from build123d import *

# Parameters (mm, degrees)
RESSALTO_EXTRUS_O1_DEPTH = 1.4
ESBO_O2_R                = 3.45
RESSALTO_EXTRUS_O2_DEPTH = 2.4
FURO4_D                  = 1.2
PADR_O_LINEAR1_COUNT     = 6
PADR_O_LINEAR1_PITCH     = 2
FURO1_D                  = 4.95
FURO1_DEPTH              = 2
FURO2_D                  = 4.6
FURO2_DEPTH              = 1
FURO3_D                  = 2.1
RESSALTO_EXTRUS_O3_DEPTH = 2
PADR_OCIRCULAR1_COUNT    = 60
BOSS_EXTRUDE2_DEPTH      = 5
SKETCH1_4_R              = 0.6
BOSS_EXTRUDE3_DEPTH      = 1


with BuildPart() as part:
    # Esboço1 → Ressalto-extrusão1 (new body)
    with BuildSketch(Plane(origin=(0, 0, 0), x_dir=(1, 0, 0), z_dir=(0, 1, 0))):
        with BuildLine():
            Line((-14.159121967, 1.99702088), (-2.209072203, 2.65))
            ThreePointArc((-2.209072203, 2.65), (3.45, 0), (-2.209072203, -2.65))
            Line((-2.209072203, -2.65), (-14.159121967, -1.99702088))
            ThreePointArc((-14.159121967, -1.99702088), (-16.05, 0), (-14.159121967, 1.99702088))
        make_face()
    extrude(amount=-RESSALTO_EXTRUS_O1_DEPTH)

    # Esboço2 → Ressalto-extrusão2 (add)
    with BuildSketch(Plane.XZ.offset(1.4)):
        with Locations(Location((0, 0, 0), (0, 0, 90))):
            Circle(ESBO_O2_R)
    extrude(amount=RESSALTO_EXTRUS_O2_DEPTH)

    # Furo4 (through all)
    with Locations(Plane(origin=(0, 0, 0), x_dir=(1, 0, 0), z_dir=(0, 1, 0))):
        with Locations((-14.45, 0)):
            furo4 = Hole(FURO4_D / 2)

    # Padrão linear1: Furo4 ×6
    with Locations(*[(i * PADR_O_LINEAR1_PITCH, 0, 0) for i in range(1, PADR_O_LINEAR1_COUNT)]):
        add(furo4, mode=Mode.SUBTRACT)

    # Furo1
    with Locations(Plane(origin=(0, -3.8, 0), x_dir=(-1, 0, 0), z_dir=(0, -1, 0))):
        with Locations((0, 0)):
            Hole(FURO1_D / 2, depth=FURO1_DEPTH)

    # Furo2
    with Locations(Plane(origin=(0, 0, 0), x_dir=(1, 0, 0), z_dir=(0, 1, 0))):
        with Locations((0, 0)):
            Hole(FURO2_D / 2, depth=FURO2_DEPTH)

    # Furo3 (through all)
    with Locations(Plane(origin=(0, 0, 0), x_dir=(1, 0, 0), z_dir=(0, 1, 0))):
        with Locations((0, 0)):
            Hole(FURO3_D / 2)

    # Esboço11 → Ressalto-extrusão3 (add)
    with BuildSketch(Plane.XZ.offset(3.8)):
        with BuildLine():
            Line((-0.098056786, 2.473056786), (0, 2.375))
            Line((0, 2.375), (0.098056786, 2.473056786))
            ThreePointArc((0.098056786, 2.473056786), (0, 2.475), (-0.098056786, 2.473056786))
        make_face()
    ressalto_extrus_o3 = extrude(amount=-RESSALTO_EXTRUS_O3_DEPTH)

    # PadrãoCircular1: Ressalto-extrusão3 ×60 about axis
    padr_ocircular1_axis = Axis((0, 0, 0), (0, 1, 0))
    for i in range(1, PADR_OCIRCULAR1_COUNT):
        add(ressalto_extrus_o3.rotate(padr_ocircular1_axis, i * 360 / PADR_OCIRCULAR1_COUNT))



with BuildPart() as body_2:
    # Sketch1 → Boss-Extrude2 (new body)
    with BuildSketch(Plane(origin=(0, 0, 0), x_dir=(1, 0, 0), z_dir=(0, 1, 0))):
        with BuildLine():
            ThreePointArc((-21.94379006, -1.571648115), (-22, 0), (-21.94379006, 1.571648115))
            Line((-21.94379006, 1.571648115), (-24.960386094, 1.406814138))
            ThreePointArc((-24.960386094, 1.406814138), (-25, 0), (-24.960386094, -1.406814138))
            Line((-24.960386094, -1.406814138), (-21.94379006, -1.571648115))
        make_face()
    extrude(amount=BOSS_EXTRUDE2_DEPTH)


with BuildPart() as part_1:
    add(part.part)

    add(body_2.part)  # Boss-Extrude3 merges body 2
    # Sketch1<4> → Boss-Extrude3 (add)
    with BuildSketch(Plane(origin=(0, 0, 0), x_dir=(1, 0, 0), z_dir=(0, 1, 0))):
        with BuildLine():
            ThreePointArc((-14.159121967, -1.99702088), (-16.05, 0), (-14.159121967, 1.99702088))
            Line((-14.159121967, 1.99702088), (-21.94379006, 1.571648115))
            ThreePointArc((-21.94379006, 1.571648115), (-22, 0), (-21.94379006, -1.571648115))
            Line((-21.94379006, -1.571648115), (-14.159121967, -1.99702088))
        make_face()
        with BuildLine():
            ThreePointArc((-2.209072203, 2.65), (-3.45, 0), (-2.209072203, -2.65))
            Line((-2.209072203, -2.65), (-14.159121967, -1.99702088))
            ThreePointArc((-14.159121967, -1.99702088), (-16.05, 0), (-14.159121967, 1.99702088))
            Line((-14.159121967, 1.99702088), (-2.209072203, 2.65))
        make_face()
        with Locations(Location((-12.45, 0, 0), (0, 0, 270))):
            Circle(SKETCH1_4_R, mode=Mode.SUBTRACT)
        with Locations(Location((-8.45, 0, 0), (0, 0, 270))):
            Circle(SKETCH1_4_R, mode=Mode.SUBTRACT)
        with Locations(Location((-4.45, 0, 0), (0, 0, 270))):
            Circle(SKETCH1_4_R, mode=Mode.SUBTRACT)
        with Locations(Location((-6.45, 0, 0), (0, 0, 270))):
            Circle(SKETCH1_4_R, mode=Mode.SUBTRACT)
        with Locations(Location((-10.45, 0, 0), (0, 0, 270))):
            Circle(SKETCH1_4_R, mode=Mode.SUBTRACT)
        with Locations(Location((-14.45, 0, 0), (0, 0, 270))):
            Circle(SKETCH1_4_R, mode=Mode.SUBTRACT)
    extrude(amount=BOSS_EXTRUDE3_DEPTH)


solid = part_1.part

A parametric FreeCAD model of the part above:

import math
import FreeCAD as App
import Part
import Sketcher

V = App.Vector
Q = App.Units.Quantity

doc = App.newDocument("Part")
body = doc.addObject("PartDesign::Body", "Body")

# Sketch on XZ plane
sketch1 = body.newObject("Sketcher::SketchObject", "Sketch")
sketch1.AttachmentSupport = (doc.getObject("XZ_Plane"), [""])
sketch1.MapMode = "FlatFace"
sketch1.addGeometry([
    Part.LineSegment(V(-2.2, -2.6, 0), V(-14.2, -2, 0)),
    Part.ArcOfCircle(Part.Circle(V(-14.1, 0, 0), V(0, 0, 1), 2), math.radians(93), math.radians(267)),
    Part.LineSegment(V(-14.2, 2, 0), V(-2.2, 2.6, 0)),
    Part.ArcOfCircle(Part.Circle(V(0, 0, 0), V(0, 0, 1), 3.5), math.radians(-130), math.radians(130)),
], False)
sketch1.addConstraint([
    Sketcher.Constraint("Tangent", 0, 2, 1, 2),
    Sketcher.Constraint("Tangent", 1, 1, 2, 1),
    Sketcher.Constraint("Coincident", 2, 2, 3, 2),
    Sketcher.Constraint("Coincident", 3, 1, 0, 1),
    Sketcher.Constraint("Coincident", 3, 3, -1, 1),
    Sketcher.Constraint("Symmetric", 0, 2, 1, 1, -1),
    Sketcher.Constraint("Radius", 1, Q("2 mm")),
    Sketcher.Constraint("Radius", 3, Q("3.45 mm")),
    Sketcher.Constraint("DistanceY", 3, 1, 2, 2, Q("5.3 mm")),
    Sketcher.Constraint("DistanceX", 1, 3, -1, 1, Q("14.05 mm")),
])
pad1 = body.newObject("PartDesign::Pad", "Pad")
pad1.Profile = sketch1
pad1.Length = 1.4

# Sketch on XZ plane
sketch2 = body.newObject("Sketcher::SketchObject", "Sketch001")
sketch2.AttachmentSupport = (doc.getObject("XZ_Plane"), [""])
sketch2.MapMode = "FlatFace"
sketch2.AttachmentOffset = App.Placement(V(0, 0, 1.4), App.Rotation())
sketch2.addGeometry(Part.Circle(V(0, 0, 0), V(0, 0, 1), 3.5), False)
sketch2.addConstraint([
    Sketcher.Constraint("Coincident", 0, 3, -1, 1),
    Sketcher.Constraint("Diameter", 0, Q("6.9 mm")),
])
pad2 = body.newObject("PartDesign::Pad", "Pad001")
pad2.Profile = sketch2
pad2.Length = 2.4

# Sketch on XZ plane
sketch3 = body.newObject("Sketcher::SketchObject", "Sketch002")
sketch3.AttachmentSupport = (doc.getObject("XZ_Plane"), [""])
sketch3.MapMode = "FlatFace"
sketch3.addGeometry(Part.Circle(V(-14.4, 0, 0), V(0, 0, 1), 0.6), False)
sketch3.addConstraint([
    Sketcher.Constraint("PointOnObject", 0, 3, -1),
    Sketcher.Constraint("Diameter", 0, Q("1.2 mm")),
    Sketcher.Constraint("DistanceX", 0, 3, -1, 1, Q("14.45 mm")),
])
doc.recompute()
hole = body.newObject("PartDesign::Hole", "Hole")
hole.Profile = sketch3
hole.ThreadType = "None"
hole.Diameter = 1.2
hole.DepthType = "ThroughAll"
hole.Reversed = True
doc.recompute()

linearpattern = body.newObject("PartDesign::LinearPattern", "LinearPattern")
linearpattern.Originals = [hole]
linearpattern.Direction = (doc.getObject("X_Axis"), [""])
linearpattern.Mode = "offset"
linearpattern.Offset = 2
linearpattern.Occurrences = 6
body.Tip = linearpattern

# Sketch on XZ plane
sketch4 = body.newObject("Sketcher::SketchObject", "Sketch003")
sketch4.AttachmentSupport = (doc.getObject("XZ_Plane"), [""])
sketch4.MapMode = "FlatFace"
sketch4.AttachmentOffset = App.Placement(V(0, 0, 3.8), App.Rotation())
sketch4.addGeometry(Part.Circle(V(0, 0, 0), V(0, 0, 1), 2.5), False)
sketch4.addConstraint([
    Sketcher.Constraint("Coincident", 0, 3, -1, 1),
    Sketcher.Constraint("Diameter", 0, Q("4.95 mm")),
])
doc.recompute()
hole2 = body.newObject("PartDesign::Hole", "Hole001")
hole2.Profile = sketch4
hole2.ThreadType = "None"
hole2.Diameter = 4.95
hole2.DepthType = "Dimension"
hole2.Depth = 2
hole2.DrillPoint = "Flat"

# Sketch on XZ plane
sketch5 = body.newObject("Sketcher::SketchObject", "Sketch004")
sketch5.AttachmentSupport = (doc.getObject("XZ_Plane"), [""])
sketch5.MapMode = "FlatFace"
sketch5.addGeometry(Part.Circle(V(0, 0, 0), V(0, 0, 1), 2.3), False)
sketch5.addConstraint([
    Sketcher.Constraint("Coincident", 0, 3, -1, 1),
    Sketcher.Constraint("Diameter", 0, Q("4.6 mm")),
])
doc.recompute()
hole3 = body.newObject("PartDesign::Hole", "Hole002")
hole3.Profile = sketch5
hole3.ThreadType = "None"
hole3.Diameter = 4.6
hole3.DepthType = "Dimension"
hole3.Depth = 1
hole3.DrillPoint = "Flat"
hole3.Reversed = True

# Sketch on XZ plane
sketch6 = body.newObject("Sketcher::SketchObject", "Sketch005")
sketch6.AttachmentSupport = (doc.getObject("XZ_Plane"), [""])
sketch6.MapMode = "FlatFace"
sketch6.addGeometry(Part.Circle(V(0, 0, 0), V(0, 0, 1), 1.1), False)
sketch6.addConstraint([
    Sketcher.Constraint("Coincident", 0, 3, -1, 1),
    Sketcher.Constraint("Diameter", 0, Q("2.1 mm")),
])
doc.recompute()
hole4 = body.newObject("PartDesign::Hole", "Hole003")
hole4.Profile = sketch6
hole4.ThreadType = "None"
hole4.Diameter = 2.1
hole4.DepthType = "ThroughAll"
hole4.Reversed = True

# Sketch on XZ plane
sketch7 = body.newObject("Sketcher::SketchObject", "Sketch006")
sketch7.AttachmentSupport = (doc.getObject("XZ_Plane"), [""])
sketch7.MapMode = "FlatFace"
sketch7.AttachmentOffset = App.Placement(V(0, 0, 3.8), App.Rotation())
sketch7.addGeometry([
    Part.LineSegment(V(-0.1, 2.47, 0), V(0, 2.38, 0)),
    Part.LineSegment(V(0, 2.38, 0), V(0.1, 2.47, 0)),
    Part.ArcOfCircle(Part.Circle(V(0, 0, 0), V(0, 0, 1), 2.48), math.radians(87.73), math.radians(92.27)),
], False)
sketch7.addConstraint([
    Sketcher.Constraint("Coincident", 0, 2, 1, 1),
    Sketcher.Constraint("Coincident", 1, 2, 2, 1),
    Sketcher.Constraint("Coincident", 2, 2, 0, 1),
    Sketcher.Constraint("Coincident", 2, 3, -1, 1),
    Sketcher.Constraint("PointOnObject", 0, 2, -2),
    Sketcher.Constraint("Perpendicular", 0, 1),
    Sketcher.Constraint("Horizontal", 1, 2, 2, 2),
    Sketcher.Constraint("Radius", 2, Q("2.475 mm")),
    Sketcher.Constraint("DistanceY", -1, 1, 0, 2, Q("2.375 mm")),
])
pad3 = body.newObject("PartDesign::Pad", "Pad002")
pad3.Profile = sketch7
pad3.Length = 2
pad3.Reversed = True
doc.recompute()

polarpattern = body.newObject("PartDesign::PolarPattern", "PolarPattern")
polarpattern.Originals = [pad3]
polarpattern.Axis = (doc.getObject("Y_Axis"), [""])
polarpattern.Angle = 360
polarpattern.Occurrences = 60
body.Tip = polarpattern
body2 = doc.addObject("PartDesign::Body", "Body001")

# Sketch on XZ plane
sketch8 = body2.newObject("Sketcher::SketchObject", "Sketch007")
sketch8.AttachmentSupport = (doc.getObject("XZ_Plane001"), [""])
sketch8.MapMode = "FlatFace"
sketch8.addGeometry([
    Part.ArcOfCircle(Part.Circle(V(0, 0, 0), V(0, 0, 1), 22), math.radians(175.9), math.radians(184.1)),
    Part.LineSegment(V(-21.9, -1.6, 0), V(-25, -1.4, 0)),
    Part.ArcOfCircle(Part.Circle(V(0, 0, 0), V(0, 0, 1), 25), math.radians(176.77), math.radians(183.23)),
    Part.LineSegment(V(-25, 1.4, 0), V(-21.9, 1.6, 0)),
], False)
sketch8.addConstraint([
    Sketcher.Constraint("Coincident", 0, 2, 1, 1),
    Sketcher.Constraint("Coincident", 1, 2, 2, 2),
    Sketcher.Constraint("Coincident", 2, 1, 3, 1),
    Sketcher.Constraint("Coincident", 3, 2, 0, 1),
    Sketcher.Constraint("Coincident", 0, 3, -1, 1),
    Sketcher.Constraint("Coincident", 2, 3, -1, 1),
    Sketcher.Constraint("Vertical", 1, 2, 2, 1),
    Sketcher.Constraint("Vertical", 0, 2, 3, 2),
    Sketcher.Constraint("Radius", 0, Q("22 mm")),
    Sketcher.Constraint("Radius", 2, Q("25 mm")),
    Sketcher.Constraint("DistanceX", 0, 2, -1, 1, Q("21.94379 mm")),
    Sketcher.Constraint("DistanceY", 1, 2, 2, 1, Q("2.813628 mm")),
])
pad4 = body2.newObject("PartDesign::Pad", "Pad003")
pad4.Profile = sketch8
pad4.Length = 5
pad4.Reversed = True
body.AllowCompound = True
doc.recompute()

boolean = body.newObject("PartDesign::Boolean", "Boolean")
boolean.Type = "Fuse"
boolean.addObjects([body2])

# Sketch on XZ plane
sketch9 = body.newObject("Sketcher::SketchObject", "Sketch008")
sketch9.AttachmentSupport = (doc.getObject("XZ_Plane"), [""])
sketch9.MapMode = "FlatFace"
sketch9.addGeometry([
    Part.LineSegment(V(-14.2, -2, 0), V(-21.9, -1.6, 0)),  # 0
    Part.ArcOfCircle(Part.Circle(V(0, 0, 0), V(0, 0, 1), 22), math.radians(175.9), math.radians(184.1)),  # 1
    Part.LineSegment(V(-21.9, 1.6, 0), V(-14.2, 2, 0)),  # 2
    Part.LineSegment(V(-14.2, 2, 0), V(-2.2, 2.6, 0)),  # 3
    Part.ArcOfCircle(Part.Circle(V(0, 0, 0), V(0, 0, 1), 3.4), math.radians(130), math.radians(230)),  # 4
    Part.LineSegment(V(-2.2, -2.6, 0), V(-14.2, -2, 0)),  # 5
    Part.Circle(V(-14.4, 0, 0), V(0, 0, 1), 0.6),  # 6
    Part.Circle(V(-12.4, 0, 0), V(0, 0, 1), 0.6),  # 7
    Part.Circle(V(-10.4, 0, 0), V(0, 0, 1), 0.6),  # 8
    Part.Circle(V(-8.4, 0, 0), V(0, 0, 1), 0.6),  # 9
    Part.Circle(V(-6.5, 0, 0), V(0, 0, 1), 0.6),  # 10
    Part.Circle(V(-4.5, 0, 0), V(0, 0, 1), 0.6),  # 11
], False)
sketch9.addConstraint([
    Sketcher.Constraint("Coincident", 0, 2, 1, 2),
    Sketcher.Constraint("Coincident", 1, 1, 2, 1),
    Sketcher.Constraint("Coincident", 2, 2, 3, 1),
    Sketcher.Constraint("Coincident", 3, 2, 4, 1),
    Sketcher.Constraint("Coincident", 4, 2, 5, 1),
    Sketcher.Constraint("Coincident", 5, 2, 0, 1),
    Sketcher.Constraint("Coincident", 1, 3, -1, 1),
    Sketcher.Constraint("Coincident", 4, 3, -1, 1),
    Sketcher.Constraint("Equal", 6, 7),
    Sketcher.Constraint("Equal", 7, 8),
    Sketcher.Constraint("Equal", 8, 9),
    Sketcher.Constraint("Equal", 9, 10),
    Sketcher.Constraint("Equal", 10, 11),
    Sketcher.Constraint("Symmetric", 2, 2, 5, 2, -1),
    Sketcher.Constraint("PointOnObject", 6, 3, -1),
    Sketcher.Constraint("PointOnObject", 7, 3, -1),
    Sketcher.Constraint("PointOnObject", 8, 3, -1),
    Sketcher.Constraint("PointOnObject", 9, 3, -1),
    Sketcher.Constraint("PointOnObject", 10, 3, -1),
    Sketcher.Constraint("PointOnObject", 11, 3, -1),
    Sketcher.Constraint("Parallel", 2, 3),
    Sketcher.Constraint("Parallel", 0, 5),
    Sketcher.Constraint("Vertical", 0, 2, 1, 1),
    Sketcher.Constraint("Radius", 1, Q("22 mm")),
    Sketcher.Constraint("Diameter", 6, Q("1.2 mm")),
    Sketcher.Constraint("Radius", 4, Q("3.45 mm")),
    Sketcher.Constraint("DistanceX", 6, 3, 7, 3, Q("2 mm")),
    Sketcher.Constraint("DistanceX", 7, 3, 8, 3, Q("2 mm")),
    Sketcher.Constraint("DistanceX", 8, 3, 9, 3, Q("2 mm")),
    Sketcher.Constraint("DistanceX", 9, 3, 10, 3, Q("2 mm")),
    Sketcher.Constraint("DistanceX", 10, 3, 11, 3, Q("2 mm")),
    Sketcher.Constraint("DistanceY", 4, 2, 3, 2, Q("5.3 mm")),
    Sketcher.Constraint("DistanceX", 6, 3, -1, 1, Q("14.45 mm")),
    Sketcher.Constraint("Distance", 0, Q("7.796281 mm")),
    Sketcher.Constraint("DistanceX", 0, 2, -1, 1, Q("21.94379 mm")),
])
pad5 = body.newObject("PartDesign::Pad", "Pad004")
pad5.Profile = sketch9
pad5.Length = 1
pad5.Reversed = True

doc.recompute()
